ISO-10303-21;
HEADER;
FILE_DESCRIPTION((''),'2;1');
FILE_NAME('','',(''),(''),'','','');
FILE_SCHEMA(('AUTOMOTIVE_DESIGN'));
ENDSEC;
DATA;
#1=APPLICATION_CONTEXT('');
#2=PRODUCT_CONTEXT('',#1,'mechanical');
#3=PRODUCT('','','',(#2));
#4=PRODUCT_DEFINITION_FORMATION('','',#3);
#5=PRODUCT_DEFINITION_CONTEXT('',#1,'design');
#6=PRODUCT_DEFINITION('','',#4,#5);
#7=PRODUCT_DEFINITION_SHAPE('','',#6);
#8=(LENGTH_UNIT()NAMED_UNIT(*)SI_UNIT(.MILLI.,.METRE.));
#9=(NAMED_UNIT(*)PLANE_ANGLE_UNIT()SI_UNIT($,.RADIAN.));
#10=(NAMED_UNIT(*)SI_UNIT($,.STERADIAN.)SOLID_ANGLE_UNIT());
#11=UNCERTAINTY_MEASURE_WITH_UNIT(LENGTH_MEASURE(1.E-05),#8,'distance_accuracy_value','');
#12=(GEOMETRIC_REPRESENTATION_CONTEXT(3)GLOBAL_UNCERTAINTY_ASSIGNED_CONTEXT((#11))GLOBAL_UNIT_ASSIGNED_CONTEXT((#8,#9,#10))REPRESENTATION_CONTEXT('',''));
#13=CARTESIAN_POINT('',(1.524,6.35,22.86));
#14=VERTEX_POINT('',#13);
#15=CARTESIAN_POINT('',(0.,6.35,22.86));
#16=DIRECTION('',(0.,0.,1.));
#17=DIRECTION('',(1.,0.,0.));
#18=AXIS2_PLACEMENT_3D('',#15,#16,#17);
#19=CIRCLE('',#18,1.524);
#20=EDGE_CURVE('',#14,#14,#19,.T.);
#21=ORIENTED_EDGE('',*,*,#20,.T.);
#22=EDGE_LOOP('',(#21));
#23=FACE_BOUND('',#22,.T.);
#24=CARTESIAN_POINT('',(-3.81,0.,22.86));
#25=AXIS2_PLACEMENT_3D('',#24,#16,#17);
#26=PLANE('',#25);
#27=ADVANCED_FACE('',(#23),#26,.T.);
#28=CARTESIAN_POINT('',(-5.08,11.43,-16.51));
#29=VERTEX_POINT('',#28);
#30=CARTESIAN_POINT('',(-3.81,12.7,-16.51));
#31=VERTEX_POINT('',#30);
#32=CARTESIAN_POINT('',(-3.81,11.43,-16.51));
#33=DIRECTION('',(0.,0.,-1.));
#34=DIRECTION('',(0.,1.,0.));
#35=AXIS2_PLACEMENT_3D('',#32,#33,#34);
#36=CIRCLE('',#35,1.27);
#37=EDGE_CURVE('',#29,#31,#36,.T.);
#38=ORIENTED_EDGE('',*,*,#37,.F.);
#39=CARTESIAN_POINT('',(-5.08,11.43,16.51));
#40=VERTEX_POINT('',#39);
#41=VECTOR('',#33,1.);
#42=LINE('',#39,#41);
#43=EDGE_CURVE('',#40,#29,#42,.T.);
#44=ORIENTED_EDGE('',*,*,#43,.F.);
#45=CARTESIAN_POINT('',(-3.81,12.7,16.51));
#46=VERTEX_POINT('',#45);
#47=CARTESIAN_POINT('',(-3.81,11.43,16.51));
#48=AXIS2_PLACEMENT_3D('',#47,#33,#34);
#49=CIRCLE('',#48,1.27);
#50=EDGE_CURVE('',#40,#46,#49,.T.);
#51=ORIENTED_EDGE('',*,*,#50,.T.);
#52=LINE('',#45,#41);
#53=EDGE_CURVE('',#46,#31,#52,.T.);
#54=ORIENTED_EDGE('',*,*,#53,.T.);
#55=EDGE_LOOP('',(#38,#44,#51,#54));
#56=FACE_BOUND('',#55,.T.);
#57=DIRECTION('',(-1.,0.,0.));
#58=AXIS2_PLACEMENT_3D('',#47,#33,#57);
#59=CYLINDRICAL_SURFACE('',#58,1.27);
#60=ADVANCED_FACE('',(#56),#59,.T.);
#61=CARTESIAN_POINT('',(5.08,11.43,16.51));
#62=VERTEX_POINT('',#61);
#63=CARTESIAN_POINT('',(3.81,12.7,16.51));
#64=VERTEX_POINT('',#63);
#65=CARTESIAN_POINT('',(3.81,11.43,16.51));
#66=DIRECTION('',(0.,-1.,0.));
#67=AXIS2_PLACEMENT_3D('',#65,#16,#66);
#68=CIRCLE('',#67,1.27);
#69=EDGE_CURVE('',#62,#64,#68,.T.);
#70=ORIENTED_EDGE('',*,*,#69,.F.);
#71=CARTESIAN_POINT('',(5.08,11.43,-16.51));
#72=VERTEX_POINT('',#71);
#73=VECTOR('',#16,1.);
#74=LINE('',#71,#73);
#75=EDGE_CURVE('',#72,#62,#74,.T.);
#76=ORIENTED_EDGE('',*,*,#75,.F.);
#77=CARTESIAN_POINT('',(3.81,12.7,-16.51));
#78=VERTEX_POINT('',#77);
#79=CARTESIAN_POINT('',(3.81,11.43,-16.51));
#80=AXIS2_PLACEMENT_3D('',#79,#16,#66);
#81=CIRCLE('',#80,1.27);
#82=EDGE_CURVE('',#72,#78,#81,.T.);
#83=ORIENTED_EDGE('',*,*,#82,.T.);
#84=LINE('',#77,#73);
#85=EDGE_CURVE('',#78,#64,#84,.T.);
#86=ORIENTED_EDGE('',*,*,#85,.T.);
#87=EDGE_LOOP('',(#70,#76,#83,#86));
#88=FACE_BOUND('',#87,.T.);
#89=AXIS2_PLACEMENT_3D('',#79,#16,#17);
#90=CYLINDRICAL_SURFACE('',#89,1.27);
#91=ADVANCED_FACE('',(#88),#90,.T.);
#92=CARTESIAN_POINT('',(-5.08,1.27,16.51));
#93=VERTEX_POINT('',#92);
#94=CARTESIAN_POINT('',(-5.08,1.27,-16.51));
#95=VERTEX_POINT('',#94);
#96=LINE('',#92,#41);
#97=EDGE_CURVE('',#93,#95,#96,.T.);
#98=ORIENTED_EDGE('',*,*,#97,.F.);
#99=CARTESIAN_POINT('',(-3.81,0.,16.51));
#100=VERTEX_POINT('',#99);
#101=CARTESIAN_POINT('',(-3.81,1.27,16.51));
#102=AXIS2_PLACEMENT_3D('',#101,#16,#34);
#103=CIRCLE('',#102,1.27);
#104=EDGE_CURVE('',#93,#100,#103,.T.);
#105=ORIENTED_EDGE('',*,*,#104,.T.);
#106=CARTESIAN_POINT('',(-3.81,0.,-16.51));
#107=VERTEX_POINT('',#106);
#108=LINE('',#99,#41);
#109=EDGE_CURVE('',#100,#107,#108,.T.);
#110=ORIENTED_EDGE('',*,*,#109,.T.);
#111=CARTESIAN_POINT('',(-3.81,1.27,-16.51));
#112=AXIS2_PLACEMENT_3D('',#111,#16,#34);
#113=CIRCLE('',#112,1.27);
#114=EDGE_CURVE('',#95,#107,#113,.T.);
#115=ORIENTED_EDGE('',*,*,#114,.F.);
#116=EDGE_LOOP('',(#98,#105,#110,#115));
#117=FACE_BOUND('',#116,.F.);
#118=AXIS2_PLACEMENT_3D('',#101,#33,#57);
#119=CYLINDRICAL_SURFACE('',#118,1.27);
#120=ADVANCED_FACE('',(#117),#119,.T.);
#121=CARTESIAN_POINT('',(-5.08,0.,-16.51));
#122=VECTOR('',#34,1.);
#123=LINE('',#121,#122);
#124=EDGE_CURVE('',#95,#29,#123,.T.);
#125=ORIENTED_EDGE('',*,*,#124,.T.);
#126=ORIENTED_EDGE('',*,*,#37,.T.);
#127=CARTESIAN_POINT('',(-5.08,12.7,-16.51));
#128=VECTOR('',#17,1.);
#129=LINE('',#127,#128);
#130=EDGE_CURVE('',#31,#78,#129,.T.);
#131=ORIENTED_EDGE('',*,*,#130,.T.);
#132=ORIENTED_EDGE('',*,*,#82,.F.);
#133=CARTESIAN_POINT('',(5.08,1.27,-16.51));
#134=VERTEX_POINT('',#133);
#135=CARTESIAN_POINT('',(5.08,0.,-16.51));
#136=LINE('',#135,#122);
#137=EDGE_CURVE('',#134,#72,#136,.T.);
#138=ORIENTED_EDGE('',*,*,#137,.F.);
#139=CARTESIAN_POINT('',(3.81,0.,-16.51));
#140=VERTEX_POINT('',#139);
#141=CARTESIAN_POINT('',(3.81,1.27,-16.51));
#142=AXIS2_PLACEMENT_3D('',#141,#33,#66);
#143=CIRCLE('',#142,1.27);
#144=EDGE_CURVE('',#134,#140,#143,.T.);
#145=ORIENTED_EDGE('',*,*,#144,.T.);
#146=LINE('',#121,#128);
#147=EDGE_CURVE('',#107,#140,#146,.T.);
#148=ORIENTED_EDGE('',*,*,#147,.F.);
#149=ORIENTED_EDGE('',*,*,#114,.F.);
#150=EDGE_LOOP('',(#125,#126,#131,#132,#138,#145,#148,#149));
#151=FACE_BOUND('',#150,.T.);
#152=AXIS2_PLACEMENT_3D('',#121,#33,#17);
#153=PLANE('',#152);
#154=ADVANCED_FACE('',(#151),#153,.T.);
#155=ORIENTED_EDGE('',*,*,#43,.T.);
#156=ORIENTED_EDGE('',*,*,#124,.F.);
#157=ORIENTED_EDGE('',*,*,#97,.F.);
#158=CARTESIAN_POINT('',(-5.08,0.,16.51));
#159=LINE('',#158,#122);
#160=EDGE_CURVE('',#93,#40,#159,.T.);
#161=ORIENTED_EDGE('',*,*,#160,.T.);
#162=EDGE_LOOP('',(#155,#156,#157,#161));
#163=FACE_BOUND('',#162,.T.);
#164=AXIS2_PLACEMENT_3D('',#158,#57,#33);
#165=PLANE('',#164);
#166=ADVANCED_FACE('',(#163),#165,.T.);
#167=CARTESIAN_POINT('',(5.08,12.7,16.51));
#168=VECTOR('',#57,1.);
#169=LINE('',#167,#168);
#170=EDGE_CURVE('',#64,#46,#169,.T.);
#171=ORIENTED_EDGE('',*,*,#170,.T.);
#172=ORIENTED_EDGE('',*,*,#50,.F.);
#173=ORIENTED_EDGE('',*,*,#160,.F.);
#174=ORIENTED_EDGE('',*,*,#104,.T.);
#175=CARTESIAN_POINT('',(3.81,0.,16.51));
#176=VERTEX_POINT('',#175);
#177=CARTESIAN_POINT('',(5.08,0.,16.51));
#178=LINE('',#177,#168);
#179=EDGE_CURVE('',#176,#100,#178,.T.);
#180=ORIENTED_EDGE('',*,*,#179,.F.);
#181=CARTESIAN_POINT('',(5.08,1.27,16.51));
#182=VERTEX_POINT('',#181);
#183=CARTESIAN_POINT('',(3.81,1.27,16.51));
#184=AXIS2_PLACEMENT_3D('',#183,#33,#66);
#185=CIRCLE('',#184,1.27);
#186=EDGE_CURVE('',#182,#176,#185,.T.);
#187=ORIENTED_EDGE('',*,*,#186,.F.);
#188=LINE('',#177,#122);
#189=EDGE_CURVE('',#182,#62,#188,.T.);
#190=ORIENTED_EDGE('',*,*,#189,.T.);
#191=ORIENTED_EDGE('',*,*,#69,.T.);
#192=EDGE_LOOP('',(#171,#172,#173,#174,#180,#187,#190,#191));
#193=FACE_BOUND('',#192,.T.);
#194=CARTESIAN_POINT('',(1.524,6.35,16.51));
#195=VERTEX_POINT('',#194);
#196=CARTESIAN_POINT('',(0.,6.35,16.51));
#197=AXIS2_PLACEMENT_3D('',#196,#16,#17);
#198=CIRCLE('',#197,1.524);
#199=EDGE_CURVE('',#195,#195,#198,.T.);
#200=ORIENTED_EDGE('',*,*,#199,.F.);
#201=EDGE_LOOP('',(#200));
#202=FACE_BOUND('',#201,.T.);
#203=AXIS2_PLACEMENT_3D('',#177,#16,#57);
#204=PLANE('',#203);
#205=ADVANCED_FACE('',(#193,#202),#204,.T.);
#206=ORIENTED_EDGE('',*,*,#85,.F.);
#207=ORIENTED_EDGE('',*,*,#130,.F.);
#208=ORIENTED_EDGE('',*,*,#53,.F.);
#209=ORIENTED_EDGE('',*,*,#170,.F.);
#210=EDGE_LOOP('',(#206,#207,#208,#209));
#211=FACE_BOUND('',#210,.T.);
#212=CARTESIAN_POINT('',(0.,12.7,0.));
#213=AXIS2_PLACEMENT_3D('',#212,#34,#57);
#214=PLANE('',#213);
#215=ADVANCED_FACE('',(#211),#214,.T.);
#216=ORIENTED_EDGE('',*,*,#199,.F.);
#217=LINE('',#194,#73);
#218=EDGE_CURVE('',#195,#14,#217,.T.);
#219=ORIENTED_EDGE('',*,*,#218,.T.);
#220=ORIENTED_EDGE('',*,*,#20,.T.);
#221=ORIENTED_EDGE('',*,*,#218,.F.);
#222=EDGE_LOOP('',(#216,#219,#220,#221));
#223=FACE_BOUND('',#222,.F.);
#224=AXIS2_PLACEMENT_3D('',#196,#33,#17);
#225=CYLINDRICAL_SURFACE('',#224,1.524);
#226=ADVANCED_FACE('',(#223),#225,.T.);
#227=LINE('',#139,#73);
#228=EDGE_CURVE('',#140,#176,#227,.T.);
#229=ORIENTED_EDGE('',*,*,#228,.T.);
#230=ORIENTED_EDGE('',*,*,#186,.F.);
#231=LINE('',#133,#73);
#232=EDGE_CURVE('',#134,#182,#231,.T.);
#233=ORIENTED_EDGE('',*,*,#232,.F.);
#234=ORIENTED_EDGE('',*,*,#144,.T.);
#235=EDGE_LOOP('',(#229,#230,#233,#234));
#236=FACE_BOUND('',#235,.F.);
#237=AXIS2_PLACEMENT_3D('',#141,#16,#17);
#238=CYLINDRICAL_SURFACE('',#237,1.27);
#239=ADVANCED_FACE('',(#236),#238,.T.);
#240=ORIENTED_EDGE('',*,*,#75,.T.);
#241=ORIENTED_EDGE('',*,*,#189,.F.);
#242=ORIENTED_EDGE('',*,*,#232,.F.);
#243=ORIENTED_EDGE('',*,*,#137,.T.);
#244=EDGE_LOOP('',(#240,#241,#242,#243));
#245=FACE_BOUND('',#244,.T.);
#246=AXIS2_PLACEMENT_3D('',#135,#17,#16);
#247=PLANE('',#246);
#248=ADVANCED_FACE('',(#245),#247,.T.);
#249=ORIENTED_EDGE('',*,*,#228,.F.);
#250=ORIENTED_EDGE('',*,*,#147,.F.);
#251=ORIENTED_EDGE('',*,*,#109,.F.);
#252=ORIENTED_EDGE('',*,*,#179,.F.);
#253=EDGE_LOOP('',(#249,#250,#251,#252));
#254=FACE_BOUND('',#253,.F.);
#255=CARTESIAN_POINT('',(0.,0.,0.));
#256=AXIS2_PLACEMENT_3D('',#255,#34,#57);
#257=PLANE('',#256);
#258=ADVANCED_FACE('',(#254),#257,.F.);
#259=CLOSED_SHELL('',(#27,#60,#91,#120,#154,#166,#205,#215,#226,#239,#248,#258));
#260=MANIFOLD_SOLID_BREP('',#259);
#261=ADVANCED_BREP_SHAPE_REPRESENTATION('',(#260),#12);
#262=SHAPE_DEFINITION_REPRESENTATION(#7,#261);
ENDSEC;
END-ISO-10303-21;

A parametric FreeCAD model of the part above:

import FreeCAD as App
import Part
import Sketcher

V = App.Vector
Q = App.Units.Quantity


def edges_at(feature, points):
    """Names of the edges that pass closest to the given points."""
    edges = feature.Shape.Edges
    near = lambda p: min(range(len(edges)), key=lambda i: edges[i].distToShape(Part.Vertex(*p))[0])
    return sorted({f"Edge{near(p) + 1}" for p in points})


def add_polygon(sketch, points):
    """Adds a closed chain of lines whose ends are joined by coincident constraints."""
    first, n = sketch.GeometryCount, len(points)
    for a, b in zip(points, points[1:] + points[:1]):
        sketch.addGeometry(Part.LineSegment(App.Vector(*a, 0), App.Vector(*b, 0)), False)
    for i in range(n):
        sketch.addConstraint(Sketcher.Constraint("Coincident", first + i, 2, first + (i + 1) % n, 1))

doc = App.newDocument("Part")
params = doc.addObject("Spreadsheet::Sheet", "Params")
for row, (alias, value) in enumerate([
    ("sketch1_width", "0.4 in"),
    ("sketch1_height", "1.3 in"),
    ("pad1_length", "0.5 in"),
    ("fillet_radius", "0.05 in"),
    ("sketch2_diameter", "0.12 in"),
    ("pad2_length", "0.25 in"),
], start=1):
    params.set(f"A{row}", alias)
    params.set(f"B{row}", "=" + value)
    params.setAlias(f"B{row}", alias)

body = doc.addObject("PartDesign::Body", "Body")

sketch1 = body.newObject("Sketcher::SketchObject", "Sketch")
sketch1.AttachmentSupport = (doc.getObject("XZ_Plane"), [""])
sketch1.MapMode = "FlatFace"
add_polygon(sketch1, [(-5, 17), (5, 17), (5, -17), (-5, -17)])
sketch1.addConstraint([
    Sketcher.Constraint("Horizontal", 0),
    Sketcher.Constraint("Vertical", 1),
    Sketcher.Constraint("Horizontal", 2),
    Sketcher.Constraint("Vertical", 3),
    Sketcher.Constraint("Symmetric", 0, 2, 2, 2, -1, 1),
    Sketcher.Constraint("DistanceX", 0, 1, 0, 2, Q("0.4 in")),
    Sketcher.Constraint("DistanceY", 1, 2, 1, 1, Q("1.3 in")),
])
sketch1.setExpression("Constraints[9]", "Params.sketch1_width")
sketch1.setExpression("Constraints[10]", "Params.sketch1_height")
pad1 = body.newObject("PartDesign::Pad", "Pad")
pad1.Profile = sketch1
pad1.setExpression("Length", "Params.pad1_length")
pad1.Reversed = True
doc.recompute()

fillet = body.newObject("PartDesign::Fillet", "Fillet")
fillet.Base = (pad1, edges_at(pad1, [
    (5.08, 12.7, 0),
    (5.08, 0, 0),
    (-5.08, 12.7, 0),
    (-5.08, 0, 0),
]))
fillet.setExpression("Radius", "Params.fillet_radius")

sketch2 = body.newObject("Sketcher::SketchObject", "Sketch001")
sketch2.AttachmentSupport = (doc.getObject("XY_Plane"), [""])
sketch2.MapMode = "FlatFace"
sketch2.AttachmentOffset = App.Placement(V(0, 0, 0.65 * 25.4), App.Rotation())
sketch2.addGeometry(Part.Circle(V(0, 6.3, 0), V(0, 0, 1), 1.5), False)
sketch2.addConstraint([
    Sketcher.Constraint("PointOnObject", 0, 3, -2),
    Sketcher.Constraint("Diameter", 0, Q("0.12 in")),
    Sketcher.Constraint("DistanceY", -1, 1, 0, 3, Q("0.25 in")),
])
sketch2.setExpression("Constraints[1]", "Params.sketch2_diameter")
pad2 = body.newObject("PartDesign::Pad", "Pad001")
pad2.Profile = sketch2
pad2.setExpression("Length", "Params.pad2_length")

doc.recompute()
